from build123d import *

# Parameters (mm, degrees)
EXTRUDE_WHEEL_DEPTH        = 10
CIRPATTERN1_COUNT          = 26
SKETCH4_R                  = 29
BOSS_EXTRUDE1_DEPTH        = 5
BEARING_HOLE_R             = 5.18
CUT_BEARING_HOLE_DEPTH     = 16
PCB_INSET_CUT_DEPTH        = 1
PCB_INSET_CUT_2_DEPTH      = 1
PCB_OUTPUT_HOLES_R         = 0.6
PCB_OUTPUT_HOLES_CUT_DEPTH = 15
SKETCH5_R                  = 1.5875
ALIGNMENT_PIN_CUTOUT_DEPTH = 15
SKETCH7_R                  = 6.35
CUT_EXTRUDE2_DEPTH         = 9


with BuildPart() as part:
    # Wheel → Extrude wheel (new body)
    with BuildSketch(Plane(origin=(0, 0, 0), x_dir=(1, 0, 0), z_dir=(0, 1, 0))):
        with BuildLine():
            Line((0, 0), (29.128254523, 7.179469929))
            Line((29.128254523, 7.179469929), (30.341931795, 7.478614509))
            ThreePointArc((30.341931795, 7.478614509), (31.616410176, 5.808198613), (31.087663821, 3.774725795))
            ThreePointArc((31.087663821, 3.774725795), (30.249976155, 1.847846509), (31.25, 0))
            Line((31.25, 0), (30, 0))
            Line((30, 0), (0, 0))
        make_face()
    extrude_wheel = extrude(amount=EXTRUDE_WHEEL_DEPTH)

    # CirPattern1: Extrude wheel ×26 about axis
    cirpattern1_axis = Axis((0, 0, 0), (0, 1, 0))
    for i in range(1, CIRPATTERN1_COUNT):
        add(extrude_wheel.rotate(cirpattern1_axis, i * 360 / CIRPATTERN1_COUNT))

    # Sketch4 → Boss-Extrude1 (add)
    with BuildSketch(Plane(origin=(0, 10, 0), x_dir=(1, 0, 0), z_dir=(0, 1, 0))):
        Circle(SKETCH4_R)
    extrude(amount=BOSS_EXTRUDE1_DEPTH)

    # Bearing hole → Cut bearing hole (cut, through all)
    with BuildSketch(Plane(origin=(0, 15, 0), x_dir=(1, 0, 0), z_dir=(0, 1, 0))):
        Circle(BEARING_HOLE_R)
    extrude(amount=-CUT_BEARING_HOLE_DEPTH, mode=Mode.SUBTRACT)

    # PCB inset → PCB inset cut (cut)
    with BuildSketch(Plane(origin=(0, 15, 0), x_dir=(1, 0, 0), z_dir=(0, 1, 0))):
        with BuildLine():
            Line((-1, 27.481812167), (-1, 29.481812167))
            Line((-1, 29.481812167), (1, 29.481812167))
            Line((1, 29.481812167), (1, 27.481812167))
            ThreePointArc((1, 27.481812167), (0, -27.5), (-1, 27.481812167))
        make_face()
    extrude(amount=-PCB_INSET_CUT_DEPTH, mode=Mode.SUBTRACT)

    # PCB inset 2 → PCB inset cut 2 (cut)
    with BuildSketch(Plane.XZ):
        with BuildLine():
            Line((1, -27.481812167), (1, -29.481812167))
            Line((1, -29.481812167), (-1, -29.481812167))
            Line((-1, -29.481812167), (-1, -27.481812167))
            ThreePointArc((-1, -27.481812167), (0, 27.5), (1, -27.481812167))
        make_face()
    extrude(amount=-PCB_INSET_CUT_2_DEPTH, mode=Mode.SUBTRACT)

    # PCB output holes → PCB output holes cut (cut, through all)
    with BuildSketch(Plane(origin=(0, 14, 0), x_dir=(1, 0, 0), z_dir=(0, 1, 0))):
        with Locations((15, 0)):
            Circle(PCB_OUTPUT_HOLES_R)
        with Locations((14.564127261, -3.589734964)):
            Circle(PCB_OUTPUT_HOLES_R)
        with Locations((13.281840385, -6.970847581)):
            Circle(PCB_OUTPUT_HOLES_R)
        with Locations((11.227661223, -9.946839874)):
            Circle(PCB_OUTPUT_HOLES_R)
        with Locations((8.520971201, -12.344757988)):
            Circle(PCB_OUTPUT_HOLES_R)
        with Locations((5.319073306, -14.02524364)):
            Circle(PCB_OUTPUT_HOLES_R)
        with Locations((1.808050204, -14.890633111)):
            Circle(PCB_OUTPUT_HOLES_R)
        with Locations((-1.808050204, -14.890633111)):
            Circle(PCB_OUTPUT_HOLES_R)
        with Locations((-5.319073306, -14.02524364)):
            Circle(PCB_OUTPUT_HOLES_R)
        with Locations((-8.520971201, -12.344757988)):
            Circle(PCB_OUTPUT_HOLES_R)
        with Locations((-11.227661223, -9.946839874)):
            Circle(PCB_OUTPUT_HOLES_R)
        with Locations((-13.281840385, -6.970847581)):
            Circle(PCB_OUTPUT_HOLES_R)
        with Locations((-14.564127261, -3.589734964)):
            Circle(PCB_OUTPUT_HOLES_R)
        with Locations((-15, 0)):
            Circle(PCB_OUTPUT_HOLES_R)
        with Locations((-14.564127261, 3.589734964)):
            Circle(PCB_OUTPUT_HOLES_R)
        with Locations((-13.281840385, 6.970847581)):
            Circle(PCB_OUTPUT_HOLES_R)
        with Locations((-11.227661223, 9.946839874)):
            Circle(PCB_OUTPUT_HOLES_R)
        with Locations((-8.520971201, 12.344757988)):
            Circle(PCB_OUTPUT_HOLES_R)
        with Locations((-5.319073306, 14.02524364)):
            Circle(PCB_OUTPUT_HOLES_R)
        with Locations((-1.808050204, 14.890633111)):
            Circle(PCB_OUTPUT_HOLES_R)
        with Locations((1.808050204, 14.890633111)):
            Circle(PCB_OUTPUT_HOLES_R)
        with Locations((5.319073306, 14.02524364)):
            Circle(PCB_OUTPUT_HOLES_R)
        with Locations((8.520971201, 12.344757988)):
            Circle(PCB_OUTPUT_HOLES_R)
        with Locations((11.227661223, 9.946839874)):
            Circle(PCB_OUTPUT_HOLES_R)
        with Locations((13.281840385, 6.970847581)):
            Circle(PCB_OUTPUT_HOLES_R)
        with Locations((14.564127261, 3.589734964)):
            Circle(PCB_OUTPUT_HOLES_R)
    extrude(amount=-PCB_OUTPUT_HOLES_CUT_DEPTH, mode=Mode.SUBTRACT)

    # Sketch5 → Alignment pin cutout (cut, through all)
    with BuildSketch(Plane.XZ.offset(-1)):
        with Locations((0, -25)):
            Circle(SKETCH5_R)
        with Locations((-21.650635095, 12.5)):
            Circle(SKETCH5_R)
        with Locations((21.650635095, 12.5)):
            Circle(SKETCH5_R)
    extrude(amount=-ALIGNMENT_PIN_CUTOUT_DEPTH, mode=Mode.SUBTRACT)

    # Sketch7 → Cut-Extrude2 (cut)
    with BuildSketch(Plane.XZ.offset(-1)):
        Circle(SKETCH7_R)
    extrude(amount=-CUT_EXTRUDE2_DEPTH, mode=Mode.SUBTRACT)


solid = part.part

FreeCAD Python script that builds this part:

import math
import FreeCAD as App
import Part
import Sketcher

doc = App.newDocument("Part")
body = doc.addObject("PartDesign::Body", "Body")

# Sketch on XZ plane
sketch1 = body.newObject("Sketcher::SketchObject", "Sketch")
sketch1.AttachmentSupport = (doc.getObject("XZ_Plane"), [""])
sketch1.MapMode = "FlatFace"
sketch1.addGeometry([
    Part.LineSegment(App.Vector(29.1, -7.2, 0), App.Vector(0, 0, 0)),  # 0
    Part.LineSegment(App.Vector(0, 0, 0), App.Vector(31.2, 0, 0)),  # 1
    Part.ArcOfCircle(Part.Circle(App.Vector(32.6, -2, 0), App.Vector(0, 0, 1), 2.4), math.radians(126), math.radians(229)),  # 2
    Part.ArcOfCircle(Part.Circle(App.Vector(29.3, -5.3, 0), App.Vector(0, 0, 1), 2.4), math.radians(-63), math.radians(41)),  # 3
    Part.LineSegment(App.Vector(30.3, -7.5, 0), App.Vector(29.1, -7.2, 0)),  # 4
], False)
sketch1.addConstraint([
    Sketcher.Constraint("Coincident", 0, 2, 1, 1),
    Sketcher.Constraint("Coincident", 1, 2, 2, 1),
    Sketcher.Constraint("Coincident", 2, 2, 3, 2),
    Sketcher.Constraint("Coincident", 3, 1, 4, 1),
    Sketcher.Constraint("Coincident", 4, 2, 0, 1),
    Sketcher.Constraint("Horizontal", 1),
    Sketcher.Constraint("Coincident", 0, 2, -1, 1),
    Sketcher.Constraint("Equal", 2, 3),
    Sketcher.Constraint("Parallel", 0, 4),
    Sketcher.Constraint("Radius", 2, 2.4),
    Sketcher.Constraint("Distance", 0, 30.0),
    Sketcher.Constraint("DistanceX", 1, 1, 1, 2, 31.25),
    Sketcher.Constraint("Distance", 4, 1.25),
    Sketcher.Constraint("DistanceX", -1, 1, 2, 3, 32.64776),
    Sketcher.Constraint("DistanceX", -1, 1, 3, 1, 30.341932),
    Sketcher.Constraint("DistanceY", 3, 3, 2, 3, 3.383528),
])
pad1 = body.newObject("PartDesign::Pad", "Pad")
pad1.Profile = sketch1
pad1.Length = 10
pad1.Reversed = True
doc.recompute()

polarpattern = body.newObject("PartDesign::PolarPattern", "PolarPattern")
polarpattern.Originals = [pad1]
polarpattern.Axis = (doc.getObject("Y_Axis"), [""])
polarpattern.Angle = 360
polarpattern.Occurrences = 26
body.Tip = polarpattern

# Sketch on XZ plane
sketch2 = body.newObject("Sketcher::SketchObject", "Sketch001")
sketch2.AttachmentSupport = (doc.getObject("XZ_Plane"), [""])
sketch2.MapMode = "FlatFace"
sketch2.AttachmentOffset = App.Placement(App.Vector(0, 0, -10), App.Rotation())
sketch2.addGeometry(Part.Circle(App.Vector(0, 0, 0), App.Vector(0, 0, 1), 29), False)
sketch2.addConstraint([
    Sketcher.Constraint("Coincident", 0, 3, -1, 1),
    Sketcher.Constraint("Diameter", 0, 58.0),
])
pad2 = body.newObject("PartDesign::Pad", "Pad001")
pad2.Profile = sketch2
pad2.Length = 5
pad2.Reversed = True

# Sketch on XZ plane
sketch3 = body.newObject("Sketcher::SketchObject", "Sketch002")
sketch3.AttachmentSupport = (doc.getObject("XZ_Plane"), [""])
sketch3.MapMode = "FlatFace"
sketch3.AttachmentOffset = App.Placement(App.Vector(0, 0, -15), App.Rotation())
sketch3.addGeometry(Part.Circle(App.Vector(0, 0, 0), App.Vector(0, 0, 1), 5), False)
sketch3.addConstraint([
    Sketcher.Constraint("Coincident", 0, 3, -1, 1),
    Sketcher.Constraint("Diameter", 0, 10.36),
])
pocket1 = body.newObject("PartDesign::Pocket", "Pocket")
pocket1.Profile = sketch3
pocket1.Type = "ThroughAll"
pocket1.Reversed = True

# Sketch on XZ plane
sketch4 = body.newObject("Sketcher::SketchObject", "Sketch003")
sketch4.AttachmentSupport = (doc.getObject("XZ_Plane"), [""])
sketch4.MapMode = "FlatFace"
sketch4.AttachmentOffset = App.Placement(App.Vector(0, 0, -15), App.Rotation())
sketch4.addGeometry([
    Part.LineSegment(App.Vector(-1, -29.5, 0), App.Vector(-1, -27.5, 0)),
    Part.ArcOfCircle(Part.Circle(App.Vector(0, 0, 0), App.Vector(0, 0, 1), 27.5), math.radians(-88), math.radians(268)),
    Part.LineSegment(App.Vector(1, -27.5, 0), App.Vector(1, -29.5, 0)),
    Part.LineSegment(App.Vector(1, -29.5, 0), App.Vector(-1, -29.5, 0)),
], False)
sketch4.addConstraint([
    Sketcher.Constraint("Coincident", 0, 2, 1, 2),
    Sketcher.Constraint("Coincident", 1, 1, 2, 1),
    Sketcher.Constraint("Coincident", 2, 2, 3, 1),
    Sketcher.Constraint("Coincident", 3, 2, 0, 1),
    Sketcher.Constraint("Vertical", 0),
    Sketcher.Constraint("Vertical", 2),
    Sketcher.Constraint("Horizontal", 3),
    Sketcher.Constraint("Coincident", 1, 3, -1, 1),
    Sketcher.Constraint("Horizontal", 0, 2, 1, 1),
    Sketcher.Constraint("Equal", 3, 0),
    Sketcher.Constraint("Radius", 1, 27.5),
    Sketcher.Constraint("DistanceX", 3, 2, 3, 1, 2.0),
])
pocket2 = body.newObject("PartDesign::Pocket", "Pocket001")
pocket2.Profile = sketch4
pocket2.Length = 1
pocket2.Reversed = True

# Sketch on XZ plane
sketch5 = body.newObject("Sketcher::SketchObject", "Sketch004")
sketch5.AttachmentSupport = (doc.getObject("XZ_Plane"), [""])
sketch5.MapMode = "FlatFace"
sketch5.addGeometry([
    Part.LineSegment(App.Vector(1, -29.5, 0), App.Vector(1, -27.5, 0)),
    Part.ArcOfCircle(Part.Circle(App.Vector(0, 0, 0), App.Vector(0, 0, 1), 27.5), math.radians(-88), math.radians(268)),
    Part.LineSegment(App.Vector(-1, -27.5, 0), App.Vector(-1, -29.5, 0)),
    Part.LineSegment(App.Vector(-1, -29.5, 0), App.Vector(1, -29.5, 0)),
], False)
sketch5.addConstraint([
    Sketcher.Constraint("Coincident", 0, 2, 1, 1),
    Sketcher.Constraint("Coincident", 1, 2, 2, 1),
    Sketcher.Constraint("Coincident", 2, 2, 3, 1),
    Sketcher.Constraint("Coincident", 3, 2, 0, 1),
    Sketcher.Constraint("Vertical", 0),
    Sketcher.Constraint("Vertical", 2),
    Sketcher.Constraint("Horizontal", 3),
    Sketcher.Constraint("Coincident", 1, 3, -1, 1),
    Sketcher.Constraint("Horizontal", 0, 2, 1, 2),
    Sketcher.Constraint("Equal", 3, 0),
    Sketcher.Constraint("Radius", 1, 27.5),
    Sketcher.Constraint("DistanceX", 3, 1, 3, 2, 2.0),
])
pocket3 = body.newObject("PartDesign::Pocket", "Pocket002")
pocket3.Profile = sketch5
pocket3.Length = 1

# Sketch on XZ plane
sketch6 = body.newObject("Sketcher::SketchObject", "Sketch005")
sketch6.AttachmentSupport = (doc.getObject("XZ_Plane"), [""])
sketch6.MapMode = "FlatFace"
sketch6.AttachmentOffset = App.Placement(App.Vector(0, 0, -14), App.Rotation())
sketch6.addGeometry([
    Part.Circle(App.Vector(15, 0, 0), App.Vector(0, 0, 1), 0.6),  # 0
    Part.Circle(App.Vector(14.6, 3.6, 0), App.Vector(0, 0, 1), 0.6),  # 1
    Part.Circle(App.Vector(13.3, 7, 0), App.Vector(0, 0, 1), 0.6),  # 2
    Part.Circle(App.Vector(11.2, 9.9, 0), App.Vector(0, 0, 1), 0.6),  # 3
    Part.Circle(App.Vector(8.5, 12.3, 0), App.Vector(0, 0, 1), 0.6),  # 4
    Part.Circle(App.Vector(5.3, 14, 0), App.Vector(0, 0, 1), 0.6),  # 5
    Part.Circle(App.Vector(1.8, 14.9, 0), App.Vector(0, 0, 1), 0.6),  # 6
    Part.Circle(App.Vector(-1.8, 14.9, 0), App.Vector(0, 0, 1), 0.6),  # 7
    Part.Circle(App.Vector(-5.3, 14, 0), App.Vector(0, 0, 1), 0.6),  # 8
    Part.Circle(App.Vector(-8.5, 12.3, 0), App.Vector(0, 0, 1), 0.6),  # 9
    Part.Circle(App.Vector(-11.2, 9.9, 0), App.Vector(0, 0, 1), 0.6),  # 10
    Part.Circle(App.Vector(-13.3, 7, 0), App.Vector(0, 0, 1), 0.6),  # 11
    Part.Circle(App.Vector(-14.6, 3.6, 0), App.Vector(0, 0, 1), 0.6),  # 12
    Part.Circle(App.Vector(-15, 0, 0), App.Vector(0, 0, 1), 0.6),  # 13
    Part.Circle(App.Vector(-14.6, -3.6, 0), App.Vector(0, 0, 1), 0.6),  # 14
    Part.Circle(App.Vector(-13.3, -7, 0), App.Vector(0, 0, 1), 0.6),  # 15
    Part.Circle(App.Vector(-11.2, -9.9, 0), App.Vector(0, 0, 1), 0.6),  # 16
    Part.Circle(App.Vector(-8.5, -12.3, 0), App.Vector(0, 0, 1), 0.6),  # 17
    Part.Circle(App.Vector(-5.3, -14, 0), App.Vector(0, 0, 1), 0.6),  # 18
    Part.Circle(App.Vector(-1.8, -14.9, 0), App.Vector(0, 0, 1), 0.6),  # 19
    Part.Circle(App.Vector(1.8, -14.9, 0), App.Vector(0, 0, 1), 0.6),  # 20
    Part.Circle(App.Vector(5.3, -14, 0), App.Vector(0, 0, 1), 0.6),  # 21
    Part.Circle(App.Vector(8.5, -12.3, 0), App.Vector(0, 0, 1), 0.6),  # 22
    Part.Circle(App.Vector(11.2, -9.9, 0), App.Vector(0, 0, 1), 0.6),  # 23
    Part.Circle(App.Vector(13.3, -7, 0), App.Vector(0, 0, 1), 0.6),  # 24
    Part.Circle(App.Vector(14.6, -3.6, 0), App.Vector(0, 0, 1), 0.6),  # 25
], False)
sketch6.addConstraint([
    Sketcher.Constraint("Equal", 0, 1),
    Sketcher.Constraint("Equal", 1, 2),
    Sketcher.Constraint("Equal", 2, 3),
    Sketcher.Constraint("Equal", 3, 4),
    Sketcher.Constraint("Equal", 4, 5),
    Sketcher.Constraint("Equal", 5, 6),
    Sketcher.Constraint("Equal", 6, 7),
    Sketcher.Constraint("Equal", 7, 8),
    Sketcher.Constraint("Equal", 8, 9),
    Sketcher.Constraint("Equal", 9, 10),
    Sketcher.Constraint("Equal", 10, 11),
    Sketcher.Constraint("Equal", 11, 12),
    Sketcher.Constraint("Equal", 12, 13),
    Sketcher.Constraint("Equal", 13, 14),
    Sketcher.Constraint("Equal", 14, 15),
    Sketcher.Constraint("Equal", 15, 16),
    Sketcher.Constraint("Equal", 16, 17),
    Sketcher.Constraint("Equal", 17, 18),
    Sketcher.Constraint("Equal", 18, 19),
    Sketcher.Constraint("Equal", 19, 20),
    Sketcher.Constraint("Equal", 20, 21),
    Sketcher.Constraint("Equal", 21, 22),
    Sketcher.Constraint("Equal", 22, 23),
    Sketcher.Constraint("Equal", 23, 24),
    Sketcher.Constraint("Equal", 24, 25),
    Sketcher.Constraint("Symmetric", 0, 3, 13, 3, -1, 1),
    Sketcher.Constraint("Symmetric", 1, 3, 14, 3, -1, 1),
    Sketcher.Constraint("Symmetric", 2, 3, 15, 3, -1, 1),
    Sketcher.Constraint("Symmetric", 3, 3, 16, 3, -1, 1),
    Sketcher.Constraint("Symmetric", 4, 3, 17, 3, -1, 1),
    Sketcher.Constraint("Symmetric", 5, 3, 18, 3, -1, 1),
    Sketcher.Constraint("Symmetric", 6, 3, 19, 3, -1, 1),
    Sketcher.Constraint("Symmetric", 7, 3, 20, 3, -1, 1),
    Sketcher.Constraint("Symmetric", 8, 3, 21, 3, -1, 1),
    Sketcher.Constraint("Symmetric", 9, 3, 22, 3, -1, 1),
    Sketcher.Constraint("Symmetric", 10, 3, 23, 3, -1, 1),
    Sketcher.Constraint("Symmetric", 11, 3, 24, 3, -1, 1),
    Sketcher.Constraint("Symmetric", 12, 3, 25, 3, -1, 1),
    Sketcher.Constraint("Symmetric", 6, 3, 7, 3, -2),
    Sketcher.Constraint("Symmetric", 5, 3, 8, 3, -2),
    Sketcher.Constraint("Symmetric", 4, 3, 9, 3, -2),
    Sketcher.Constraint("Symmetric", 3, 3, 10, 3, -2),
    Sketcher.Constraint("Symmetric", 2, 3, 11, 3, -2),
    Sketcher.Constraint("Symmetric", 1, 3, 12, 3, -2),
    Sketcher.Constraint("PointOnObject", 0, 3, -1),
    Sketcher.Constraint("Diameter", 0, 1.2),
    Sketcher.Constraint("DistanceX", -1, 1, 0, 3, 15.0),
    Sketcher.Constraint("DistanceY", 1, 3, 6, 3, 11.300898),
    Sketcher.Constraint("DistanceX", 7, 3, 6, 3, 3.6161),
    Sketcher.Constraint("DistanceX", -1, 1, 2, 3, 13.28184),
    Sketcher.Constraint("DistanceX", -1, 1, 3, 3, 11.227661),
    Sketcher.Constraint("DistanceY", -1, 1, 3, 3, 9.94684),
    Sketcher.Constraint("DistanceX", -1, 1, 4, 3, 8.520971),
    Sketcher.Constraint("DistanceY", 3, 3, 4, 3, 2.397918),
    Sketcher.Constraint("DistanceY", 2, 3, 4, 3, 5.37391),
    Sketcher.Constraint("DistanceY", 1, 3, 5, 3, 10.435509),
    Sketcher.Constraint("DistanceY", 14, 3, 12, 3, 7.17947),
    Sketcher.Constraint("DistanceX", -1, 1, 1, 3, 14.564127),
    Sketcher.Constraint("DistanceX", -1, 1, 5, 3, 5.319073),
])
pocket4 = body.newObject("PartDesign::Pocket", "Pocket003")
pocket4.Profile = sketch6
pocket4.Type = "ThroughAll"
pocket4.Reversed = True

# Sketch on XZ plane
sketch7 = body.newObject("Sketcher::SketchObject", "Sketch006")
sketch7.AttachmentSupport = (doc.getObject("XZ_Plane"), [""])
sketch7.MapMode = "FlatFace"
sketch7.AttachmentOffset = App.Placement(App.Vector(0, 0, -1), App.Rotation())
sketch7.addGeometry([
    Part.Circle(App.Vector(0, -25, 0), App.Vector(0, 0, 1), 1.6),
    Part.Circle(App.Vector(-21.7, 12.5, 0), App.Vector(0, 0, 1), 1.6),
    Part.Circle(App.Vector(21.7, 12.5, 0), App.Vector(0, 0, 1), 1.6),
], False)
sketch7.addConstraint([
    Sketcher.Constraint("Equal", 0, 1),
    Sketcher.Constraint("Equal", 1, 2),
    Sketcher.Constraint("Symmetric", 1, 3, 2, 3, -2),
    Sketcher.Constraint("PointOnObject", 0, 3, -2),
    Sketcher.Constraint("Diameter", 0, 3.175),
    Sketcher.Constraint("DistanceY", 0, 3, -1, 1, 25.0),
    Sketcher.Constraint("DistanceY", -1, 1, 1, 3, 12.5),
    Sketcher.Constraint("DistanceX", 1, 3, 2, 3, 43.30127),
])
pocket5 = body.newObject("PartDesign::Pocket", "Pocket004")
pocket5.Profile = sketch7
pocket5.Type = "ThroughAll"

# Sketch on XZ plane
sketch8 = body.newObject("Sketcher::SketchObject", "Sketch007")
sketch8.AttachmentSupport = (doc.getObject("XZ_Plane"), [""])
sketch8.MapMode = "FlatFace"
sketch8.AttachmentOffset = App.Placement(App.Vector(0, 0, -1), App.Rotation())
sketch8.addGeometry(Part.Circle(App.Vector(0, 0, 0), App.Vector(0, 0, 1), 6), False)
sketch8.addConstraint([
    Sketcher.Constraint("Coincident", 0, 3, -1, 1),
    Sketcher.Constraint("Diameter", 0, 12.7),
])
pocket6 = body.newObject("PartDesign::Pocket", "Pocket005")
pocket6.Profile = sketch8
pocket6.Length = 9

doc.recompute()
